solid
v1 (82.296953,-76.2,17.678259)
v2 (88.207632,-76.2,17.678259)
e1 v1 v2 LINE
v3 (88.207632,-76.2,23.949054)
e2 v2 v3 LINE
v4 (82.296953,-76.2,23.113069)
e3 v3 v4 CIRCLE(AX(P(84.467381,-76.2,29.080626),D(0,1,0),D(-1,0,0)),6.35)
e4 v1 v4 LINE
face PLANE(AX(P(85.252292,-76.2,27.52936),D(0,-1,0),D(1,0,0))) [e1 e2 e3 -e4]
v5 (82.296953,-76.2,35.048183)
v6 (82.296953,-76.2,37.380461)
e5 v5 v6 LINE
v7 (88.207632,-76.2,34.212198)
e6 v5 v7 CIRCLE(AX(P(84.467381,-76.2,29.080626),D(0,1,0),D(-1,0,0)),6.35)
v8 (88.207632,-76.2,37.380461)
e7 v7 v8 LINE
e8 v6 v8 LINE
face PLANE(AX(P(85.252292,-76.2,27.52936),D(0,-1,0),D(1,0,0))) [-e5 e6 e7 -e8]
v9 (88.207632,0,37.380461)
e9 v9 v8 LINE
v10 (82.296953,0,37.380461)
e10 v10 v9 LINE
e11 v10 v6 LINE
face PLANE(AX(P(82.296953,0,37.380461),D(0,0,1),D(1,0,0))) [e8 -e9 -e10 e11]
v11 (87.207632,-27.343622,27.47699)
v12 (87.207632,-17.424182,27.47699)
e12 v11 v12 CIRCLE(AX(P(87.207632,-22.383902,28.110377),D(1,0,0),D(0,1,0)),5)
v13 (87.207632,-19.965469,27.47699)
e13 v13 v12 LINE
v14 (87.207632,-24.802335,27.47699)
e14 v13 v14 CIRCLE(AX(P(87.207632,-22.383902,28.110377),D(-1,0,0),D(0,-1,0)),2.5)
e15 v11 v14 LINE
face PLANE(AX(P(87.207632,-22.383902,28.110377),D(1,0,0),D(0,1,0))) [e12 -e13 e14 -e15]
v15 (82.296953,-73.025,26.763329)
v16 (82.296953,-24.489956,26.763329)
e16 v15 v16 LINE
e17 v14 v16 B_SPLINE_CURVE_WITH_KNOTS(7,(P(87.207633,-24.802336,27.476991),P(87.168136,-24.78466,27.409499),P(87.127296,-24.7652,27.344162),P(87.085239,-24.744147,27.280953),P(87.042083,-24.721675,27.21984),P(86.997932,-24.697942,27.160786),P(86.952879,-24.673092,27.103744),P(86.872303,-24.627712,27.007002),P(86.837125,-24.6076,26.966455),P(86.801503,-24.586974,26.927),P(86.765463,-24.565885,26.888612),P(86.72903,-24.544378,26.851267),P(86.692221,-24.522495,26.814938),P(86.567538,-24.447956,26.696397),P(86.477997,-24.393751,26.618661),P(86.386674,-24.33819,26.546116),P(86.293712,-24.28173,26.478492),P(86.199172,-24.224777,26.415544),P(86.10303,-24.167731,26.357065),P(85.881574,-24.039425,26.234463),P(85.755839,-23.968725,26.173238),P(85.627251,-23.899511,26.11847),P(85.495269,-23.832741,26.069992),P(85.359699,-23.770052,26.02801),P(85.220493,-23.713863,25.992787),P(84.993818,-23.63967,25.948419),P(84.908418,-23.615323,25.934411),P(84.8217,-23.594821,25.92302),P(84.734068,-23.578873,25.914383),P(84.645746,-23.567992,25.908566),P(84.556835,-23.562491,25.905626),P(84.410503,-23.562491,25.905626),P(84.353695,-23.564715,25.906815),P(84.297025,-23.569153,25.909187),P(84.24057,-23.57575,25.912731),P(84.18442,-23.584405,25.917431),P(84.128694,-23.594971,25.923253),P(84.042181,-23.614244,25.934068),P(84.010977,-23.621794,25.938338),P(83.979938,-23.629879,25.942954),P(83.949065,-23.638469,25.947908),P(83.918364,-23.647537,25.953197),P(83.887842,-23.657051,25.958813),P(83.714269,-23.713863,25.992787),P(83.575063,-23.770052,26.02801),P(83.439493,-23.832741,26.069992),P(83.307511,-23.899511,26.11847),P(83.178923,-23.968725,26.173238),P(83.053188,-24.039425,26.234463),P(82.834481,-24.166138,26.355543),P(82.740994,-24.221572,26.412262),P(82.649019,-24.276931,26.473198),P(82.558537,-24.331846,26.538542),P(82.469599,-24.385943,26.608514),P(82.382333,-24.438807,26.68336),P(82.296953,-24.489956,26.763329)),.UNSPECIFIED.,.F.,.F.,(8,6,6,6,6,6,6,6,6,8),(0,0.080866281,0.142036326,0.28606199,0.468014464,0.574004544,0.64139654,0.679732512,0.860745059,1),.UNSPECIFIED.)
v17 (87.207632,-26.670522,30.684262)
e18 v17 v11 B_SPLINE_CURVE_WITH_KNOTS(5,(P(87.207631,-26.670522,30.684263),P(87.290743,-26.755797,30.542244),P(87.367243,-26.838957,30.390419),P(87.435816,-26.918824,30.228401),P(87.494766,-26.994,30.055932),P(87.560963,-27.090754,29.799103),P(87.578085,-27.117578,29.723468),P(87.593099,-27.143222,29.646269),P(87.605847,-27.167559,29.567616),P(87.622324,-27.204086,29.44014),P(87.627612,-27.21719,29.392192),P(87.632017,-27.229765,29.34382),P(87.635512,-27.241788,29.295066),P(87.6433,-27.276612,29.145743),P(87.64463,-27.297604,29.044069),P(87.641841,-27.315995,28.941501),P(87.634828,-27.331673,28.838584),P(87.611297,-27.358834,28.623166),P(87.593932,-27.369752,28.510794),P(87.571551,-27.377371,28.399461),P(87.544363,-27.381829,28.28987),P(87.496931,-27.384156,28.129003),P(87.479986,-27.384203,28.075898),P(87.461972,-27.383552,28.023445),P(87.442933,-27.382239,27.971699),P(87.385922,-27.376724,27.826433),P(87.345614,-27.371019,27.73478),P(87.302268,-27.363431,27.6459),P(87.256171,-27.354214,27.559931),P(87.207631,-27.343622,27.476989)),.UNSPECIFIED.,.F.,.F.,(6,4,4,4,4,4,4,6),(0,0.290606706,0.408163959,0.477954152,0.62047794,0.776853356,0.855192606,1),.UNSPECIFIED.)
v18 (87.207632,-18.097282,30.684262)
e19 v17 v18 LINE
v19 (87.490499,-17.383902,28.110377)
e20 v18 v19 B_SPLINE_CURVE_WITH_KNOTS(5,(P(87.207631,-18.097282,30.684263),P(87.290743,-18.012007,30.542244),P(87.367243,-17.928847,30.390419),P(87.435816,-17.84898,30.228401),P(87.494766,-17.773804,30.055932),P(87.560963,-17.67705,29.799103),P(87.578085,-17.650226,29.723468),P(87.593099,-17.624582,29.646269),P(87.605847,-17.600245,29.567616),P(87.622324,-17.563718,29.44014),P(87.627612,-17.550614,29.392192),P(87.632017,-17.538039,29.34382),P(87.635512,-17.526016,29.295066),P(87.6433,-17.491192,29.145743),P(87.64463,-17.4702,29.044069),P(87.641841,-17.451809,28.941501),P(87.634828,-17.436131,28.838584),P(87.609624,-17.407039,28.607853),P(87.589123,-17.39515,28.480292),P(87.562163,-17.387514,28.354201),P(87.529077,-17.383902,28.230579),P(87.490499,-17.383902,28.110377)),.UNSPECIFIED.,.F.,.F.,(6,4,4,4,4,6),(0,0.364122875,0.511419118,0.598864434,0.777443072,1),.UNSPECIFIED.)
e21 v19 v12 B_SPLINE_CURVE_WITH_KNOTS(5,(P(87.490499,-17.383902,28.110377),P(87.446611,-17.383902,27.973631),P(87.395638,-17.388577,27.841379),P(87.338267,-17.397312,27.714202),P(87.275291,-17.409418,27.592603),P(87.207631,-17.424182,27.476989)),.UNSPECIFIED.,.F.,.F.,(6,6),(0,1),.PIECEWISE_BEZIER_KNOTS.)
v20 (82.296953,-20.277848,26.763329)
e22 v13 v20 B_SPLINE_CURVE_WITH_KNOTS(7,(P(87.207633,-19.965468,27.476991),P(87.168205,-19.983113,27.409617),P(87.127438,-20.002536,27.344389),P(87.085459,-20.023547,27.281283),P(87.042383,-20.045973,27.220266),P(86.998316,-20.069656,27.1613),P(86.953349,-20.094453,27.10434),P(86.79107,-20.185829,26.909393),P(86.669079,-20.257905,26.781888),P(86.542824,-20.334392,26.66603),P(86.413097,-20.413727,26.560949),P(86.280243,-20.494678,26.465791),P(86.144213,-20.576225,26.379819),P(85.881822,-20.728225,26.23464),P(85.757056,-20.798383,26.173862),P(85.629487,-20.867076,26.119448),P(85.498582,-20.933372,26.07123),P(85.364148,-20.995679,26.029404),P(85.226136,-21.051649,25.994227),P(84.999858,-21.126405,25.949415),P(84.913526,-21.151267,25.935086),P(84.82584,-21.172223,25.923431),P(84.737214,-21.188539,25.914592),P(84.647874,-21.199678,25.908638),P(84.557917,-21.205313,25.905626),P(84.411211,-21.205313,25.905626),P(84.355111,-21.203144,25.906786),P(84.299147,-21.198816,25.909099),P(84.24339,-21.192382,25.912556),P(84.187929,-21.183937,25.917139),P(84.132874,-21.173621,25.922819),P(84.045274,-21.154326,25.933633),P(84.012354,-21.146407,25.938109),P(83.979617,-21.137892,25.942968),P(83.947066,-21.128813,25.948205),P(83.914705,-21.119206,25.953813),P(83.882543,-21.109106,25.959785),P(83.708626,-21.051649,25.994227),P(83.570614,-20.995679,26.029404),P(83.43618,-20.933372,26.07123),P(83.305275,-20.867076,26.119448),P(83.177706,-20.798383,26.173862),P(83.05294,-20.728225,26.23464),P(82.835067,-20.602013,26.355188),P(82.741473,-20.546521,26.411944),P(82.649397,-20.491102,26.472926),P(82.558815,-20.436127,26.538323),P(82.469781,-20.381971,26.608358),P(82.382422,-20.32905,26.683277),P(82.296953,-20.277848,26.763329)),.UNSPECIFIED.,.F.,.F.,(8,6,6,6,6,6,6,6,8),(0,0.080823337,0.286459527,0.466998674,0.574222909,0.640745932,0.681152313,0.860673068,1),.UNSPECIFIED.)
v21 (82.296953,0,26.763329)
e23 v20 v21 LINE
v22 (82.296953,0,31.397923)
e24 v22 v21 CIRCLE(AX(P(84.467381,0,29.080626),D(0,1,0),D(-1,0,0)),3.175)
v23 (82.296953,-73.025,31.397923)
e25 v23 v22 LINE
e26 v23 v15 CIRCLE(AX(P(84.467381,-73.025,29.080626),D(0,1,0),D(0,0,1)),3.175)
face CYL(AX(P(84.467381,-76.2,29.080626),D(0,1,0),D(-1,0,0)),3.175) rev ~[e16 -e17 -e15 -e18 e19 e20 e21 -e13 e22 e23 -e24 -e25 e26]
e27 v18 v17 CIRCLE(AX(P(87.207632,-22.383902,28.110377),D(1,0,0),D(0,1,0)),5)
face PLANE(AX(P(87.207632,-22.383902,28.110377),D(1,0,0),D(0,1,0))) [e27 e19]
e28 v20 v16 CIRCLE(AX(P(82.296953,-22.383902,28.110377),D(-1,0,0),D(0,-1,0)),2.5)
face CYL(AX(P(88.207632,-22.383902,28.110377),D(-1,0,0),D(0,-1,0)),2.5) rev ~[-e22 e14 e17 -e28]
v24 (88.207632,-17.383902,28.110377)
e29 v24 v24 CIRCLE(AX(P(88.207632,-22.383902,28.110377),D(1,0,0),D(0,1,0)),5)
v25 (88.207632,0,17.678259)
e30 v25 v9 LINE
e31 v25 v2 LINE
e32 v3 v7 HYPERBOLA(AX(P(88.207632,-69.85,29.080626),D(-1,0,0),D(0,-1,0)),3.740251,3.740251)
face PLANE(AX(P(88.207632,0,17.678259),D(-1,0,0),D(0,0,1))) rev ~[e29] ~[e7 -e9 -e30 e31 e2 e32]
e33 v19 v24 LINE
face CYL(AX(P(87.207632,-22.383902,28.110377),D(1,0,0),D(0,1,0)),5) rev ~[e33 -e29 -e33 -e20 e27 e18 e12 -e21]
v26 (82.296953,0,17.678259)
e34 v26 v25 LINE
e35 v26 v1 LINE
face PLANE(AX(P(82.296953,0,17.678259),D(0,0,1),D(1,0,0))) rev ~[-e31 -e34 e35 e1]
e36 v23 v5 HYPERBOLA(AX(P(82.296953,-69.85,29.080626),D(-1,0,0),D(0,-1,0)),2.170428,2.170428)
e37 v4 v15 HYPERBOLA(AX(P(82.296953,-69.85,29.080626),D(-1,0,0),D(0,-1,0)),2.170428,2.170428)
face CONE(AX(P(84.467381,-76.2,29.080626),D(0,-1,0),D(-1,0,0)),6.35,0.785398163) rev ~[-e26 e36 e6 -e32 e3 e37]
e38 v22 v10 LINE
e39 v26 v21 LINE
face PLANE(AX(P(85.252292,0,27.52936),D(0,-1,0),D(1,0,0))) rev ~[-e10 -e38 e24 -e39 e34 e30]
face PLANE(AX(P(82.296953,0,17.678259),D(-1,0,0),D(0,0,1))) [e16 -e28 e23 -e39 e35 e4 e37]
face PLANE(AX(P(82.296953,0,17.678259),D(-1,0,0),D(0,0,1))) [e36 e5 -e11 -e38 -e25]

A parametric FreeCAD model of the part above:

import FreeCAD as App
import Part
import Sketcher

V = App.Vector
Q = App.Units.Quantity

doc = App.newDocument("Part")
body = doc.addObject("PartDesign::Body", "Body")

sketch1 = doc.addObject("Sketcher::SketchObject", "Sketch")
body.addObject(sketch1)
sketch1.AttachmentSupport = (doc.XZ_Plane, [""])
sketch1.MapMode = "FlatFace"
sketch1.addGeometry([
    Part.LineSegment(V(82.296953, 37.380461, 0), V(82.296953, 17.678259, 0)),
    Part.LineSegment(V(82.296953, 17.678259, 0), V(88.207632, 17.678259, 0)),
    Part.LineSegment(V(88.207632, 17.678259, 0), V(88.207632, 37.380461, 0)),
    Part.LineSegment(V(88.207632, 37.380461, 0), V(82.296953, 37.380461, 0)),
], False)
sketch1.addConstraint([
    Sketcher.Constraint("Coincident", 0, 2, 1, 1),
    Sketcher.Constraint("Coincident", 1, 2, 2, 1),
    Sketcher.Constraint("Coincident", 2, 2, 3, 1),
    Sketcher.Constraint("Coincident", 3, 2, 0, 1),
    Sketcher.Constraint("Vertical", 0),
    Sketcher.Constraint("Horizontal", 1),
    Sketcher.Constraint("Vertical", 2),
    Sketcher.Constraint("Horizontal", 3),
    Sketcher.Constraint("DistanceY", 0, 2, 0, 1, Q("19.702202 mm")),
    Sketcher.Constraint("DistanceX", 1, 1, 1, 2, Q("5.910679 mm")),
    Sketcher.Constraint("DistanceY", -1, 1, 0, 2, Q("17.678259 mm")),
    Sketcher.Constraint("DistanceX", -1, 1, 1, 2, Q("88.207632 mm")),
])
pad1 = doc.addObject("PartDesign::Pad", "Pad")
body.addObject(pad1)
pad1.Profile = sketch1
pad1.Length = Q("3 in")

sketch2 = doc.addObject("Sketcher::SketchObject", "Sketch001")
body.addObject(sketch2)
sketch2.AttachmentSupport = (doc.XZ_Plane, [""])
sketch2.MapMode = "FlatFace"
sketch2.AttachmentOffset = App.Placement(V(0, 0, 3 * 25.4), App.Rotation())
sketch2.addGeometry(Part.Circle(V(84.467381, 29.080626, 0), V(0, 0, 1), 3.175), False)
sketch2.addConstraint([
    Sketcher.Constraint("Diameter", 0, Q("0.25 in")),
    Sketcher.Constraint("DistanceX", -1, 1, 0, 3, Q("84.467381 mm")),
    Sketcher.Constraint("DistanceY", -1, 1, 0, 3, Q("29.080626 mm")),
])
doc.recompute()
hole = doc.addObject("PartDesign::Hole", "Hole")
body.addObject(hole)
hole.Profile = sketch2
hole.ThreadType = "None"
hole.Diameter = Q("0.25 in")
hole.DepthType = "ThroughAll"
hole.HoleCutType = "Countersink"
hole.HoleCutDiameter = Q("0.5 in")
hole.HoleCutCountersinkAngle = 90

sketch3 = doc.addObject("Sketcher::SketchObject", "Sketch002")
body.addObject(sketch3)
sketch3.AttachmentSupport = (doc.YZ_Plane, [""])
sketch3.MapMode = "FlatFace"
sketch3.AttachmentOffset = App.Placement(V(0, 0, 88.207632), App.Rotation())
sketch3.addGeometry(Part.Circle(V(-22.383902, 28.110377, 0), V(0, 0, 1), 2.5), False)
sketch3.addConstraint([
    Sketcher.Constraint("Diameter", 0, Q("5 mm")),
    Sketcher.Constraint("DistanceX", 0, 3, -1, 1, Q("22.383902 mm")),
    Sketcher.Constraint("DistanceY", -1, 1, 0, 3, Q("28.110377 mm")),
])
doc.recompute()
hole2 = doc.addObject("PartDesign::Hole", "Hole001")
body.addObject(hole2)
hole2.Profile = sketch3
hole2.ThreadType = "None"
hole2.Diameter = 5
hole2.DepthType = "ThroughAll"
hole2.HoleCutType = "Counterbore"
hole2.HoleCutDiameter = 10
hole2.HoleCutDepth = 1

doc.recompute()
